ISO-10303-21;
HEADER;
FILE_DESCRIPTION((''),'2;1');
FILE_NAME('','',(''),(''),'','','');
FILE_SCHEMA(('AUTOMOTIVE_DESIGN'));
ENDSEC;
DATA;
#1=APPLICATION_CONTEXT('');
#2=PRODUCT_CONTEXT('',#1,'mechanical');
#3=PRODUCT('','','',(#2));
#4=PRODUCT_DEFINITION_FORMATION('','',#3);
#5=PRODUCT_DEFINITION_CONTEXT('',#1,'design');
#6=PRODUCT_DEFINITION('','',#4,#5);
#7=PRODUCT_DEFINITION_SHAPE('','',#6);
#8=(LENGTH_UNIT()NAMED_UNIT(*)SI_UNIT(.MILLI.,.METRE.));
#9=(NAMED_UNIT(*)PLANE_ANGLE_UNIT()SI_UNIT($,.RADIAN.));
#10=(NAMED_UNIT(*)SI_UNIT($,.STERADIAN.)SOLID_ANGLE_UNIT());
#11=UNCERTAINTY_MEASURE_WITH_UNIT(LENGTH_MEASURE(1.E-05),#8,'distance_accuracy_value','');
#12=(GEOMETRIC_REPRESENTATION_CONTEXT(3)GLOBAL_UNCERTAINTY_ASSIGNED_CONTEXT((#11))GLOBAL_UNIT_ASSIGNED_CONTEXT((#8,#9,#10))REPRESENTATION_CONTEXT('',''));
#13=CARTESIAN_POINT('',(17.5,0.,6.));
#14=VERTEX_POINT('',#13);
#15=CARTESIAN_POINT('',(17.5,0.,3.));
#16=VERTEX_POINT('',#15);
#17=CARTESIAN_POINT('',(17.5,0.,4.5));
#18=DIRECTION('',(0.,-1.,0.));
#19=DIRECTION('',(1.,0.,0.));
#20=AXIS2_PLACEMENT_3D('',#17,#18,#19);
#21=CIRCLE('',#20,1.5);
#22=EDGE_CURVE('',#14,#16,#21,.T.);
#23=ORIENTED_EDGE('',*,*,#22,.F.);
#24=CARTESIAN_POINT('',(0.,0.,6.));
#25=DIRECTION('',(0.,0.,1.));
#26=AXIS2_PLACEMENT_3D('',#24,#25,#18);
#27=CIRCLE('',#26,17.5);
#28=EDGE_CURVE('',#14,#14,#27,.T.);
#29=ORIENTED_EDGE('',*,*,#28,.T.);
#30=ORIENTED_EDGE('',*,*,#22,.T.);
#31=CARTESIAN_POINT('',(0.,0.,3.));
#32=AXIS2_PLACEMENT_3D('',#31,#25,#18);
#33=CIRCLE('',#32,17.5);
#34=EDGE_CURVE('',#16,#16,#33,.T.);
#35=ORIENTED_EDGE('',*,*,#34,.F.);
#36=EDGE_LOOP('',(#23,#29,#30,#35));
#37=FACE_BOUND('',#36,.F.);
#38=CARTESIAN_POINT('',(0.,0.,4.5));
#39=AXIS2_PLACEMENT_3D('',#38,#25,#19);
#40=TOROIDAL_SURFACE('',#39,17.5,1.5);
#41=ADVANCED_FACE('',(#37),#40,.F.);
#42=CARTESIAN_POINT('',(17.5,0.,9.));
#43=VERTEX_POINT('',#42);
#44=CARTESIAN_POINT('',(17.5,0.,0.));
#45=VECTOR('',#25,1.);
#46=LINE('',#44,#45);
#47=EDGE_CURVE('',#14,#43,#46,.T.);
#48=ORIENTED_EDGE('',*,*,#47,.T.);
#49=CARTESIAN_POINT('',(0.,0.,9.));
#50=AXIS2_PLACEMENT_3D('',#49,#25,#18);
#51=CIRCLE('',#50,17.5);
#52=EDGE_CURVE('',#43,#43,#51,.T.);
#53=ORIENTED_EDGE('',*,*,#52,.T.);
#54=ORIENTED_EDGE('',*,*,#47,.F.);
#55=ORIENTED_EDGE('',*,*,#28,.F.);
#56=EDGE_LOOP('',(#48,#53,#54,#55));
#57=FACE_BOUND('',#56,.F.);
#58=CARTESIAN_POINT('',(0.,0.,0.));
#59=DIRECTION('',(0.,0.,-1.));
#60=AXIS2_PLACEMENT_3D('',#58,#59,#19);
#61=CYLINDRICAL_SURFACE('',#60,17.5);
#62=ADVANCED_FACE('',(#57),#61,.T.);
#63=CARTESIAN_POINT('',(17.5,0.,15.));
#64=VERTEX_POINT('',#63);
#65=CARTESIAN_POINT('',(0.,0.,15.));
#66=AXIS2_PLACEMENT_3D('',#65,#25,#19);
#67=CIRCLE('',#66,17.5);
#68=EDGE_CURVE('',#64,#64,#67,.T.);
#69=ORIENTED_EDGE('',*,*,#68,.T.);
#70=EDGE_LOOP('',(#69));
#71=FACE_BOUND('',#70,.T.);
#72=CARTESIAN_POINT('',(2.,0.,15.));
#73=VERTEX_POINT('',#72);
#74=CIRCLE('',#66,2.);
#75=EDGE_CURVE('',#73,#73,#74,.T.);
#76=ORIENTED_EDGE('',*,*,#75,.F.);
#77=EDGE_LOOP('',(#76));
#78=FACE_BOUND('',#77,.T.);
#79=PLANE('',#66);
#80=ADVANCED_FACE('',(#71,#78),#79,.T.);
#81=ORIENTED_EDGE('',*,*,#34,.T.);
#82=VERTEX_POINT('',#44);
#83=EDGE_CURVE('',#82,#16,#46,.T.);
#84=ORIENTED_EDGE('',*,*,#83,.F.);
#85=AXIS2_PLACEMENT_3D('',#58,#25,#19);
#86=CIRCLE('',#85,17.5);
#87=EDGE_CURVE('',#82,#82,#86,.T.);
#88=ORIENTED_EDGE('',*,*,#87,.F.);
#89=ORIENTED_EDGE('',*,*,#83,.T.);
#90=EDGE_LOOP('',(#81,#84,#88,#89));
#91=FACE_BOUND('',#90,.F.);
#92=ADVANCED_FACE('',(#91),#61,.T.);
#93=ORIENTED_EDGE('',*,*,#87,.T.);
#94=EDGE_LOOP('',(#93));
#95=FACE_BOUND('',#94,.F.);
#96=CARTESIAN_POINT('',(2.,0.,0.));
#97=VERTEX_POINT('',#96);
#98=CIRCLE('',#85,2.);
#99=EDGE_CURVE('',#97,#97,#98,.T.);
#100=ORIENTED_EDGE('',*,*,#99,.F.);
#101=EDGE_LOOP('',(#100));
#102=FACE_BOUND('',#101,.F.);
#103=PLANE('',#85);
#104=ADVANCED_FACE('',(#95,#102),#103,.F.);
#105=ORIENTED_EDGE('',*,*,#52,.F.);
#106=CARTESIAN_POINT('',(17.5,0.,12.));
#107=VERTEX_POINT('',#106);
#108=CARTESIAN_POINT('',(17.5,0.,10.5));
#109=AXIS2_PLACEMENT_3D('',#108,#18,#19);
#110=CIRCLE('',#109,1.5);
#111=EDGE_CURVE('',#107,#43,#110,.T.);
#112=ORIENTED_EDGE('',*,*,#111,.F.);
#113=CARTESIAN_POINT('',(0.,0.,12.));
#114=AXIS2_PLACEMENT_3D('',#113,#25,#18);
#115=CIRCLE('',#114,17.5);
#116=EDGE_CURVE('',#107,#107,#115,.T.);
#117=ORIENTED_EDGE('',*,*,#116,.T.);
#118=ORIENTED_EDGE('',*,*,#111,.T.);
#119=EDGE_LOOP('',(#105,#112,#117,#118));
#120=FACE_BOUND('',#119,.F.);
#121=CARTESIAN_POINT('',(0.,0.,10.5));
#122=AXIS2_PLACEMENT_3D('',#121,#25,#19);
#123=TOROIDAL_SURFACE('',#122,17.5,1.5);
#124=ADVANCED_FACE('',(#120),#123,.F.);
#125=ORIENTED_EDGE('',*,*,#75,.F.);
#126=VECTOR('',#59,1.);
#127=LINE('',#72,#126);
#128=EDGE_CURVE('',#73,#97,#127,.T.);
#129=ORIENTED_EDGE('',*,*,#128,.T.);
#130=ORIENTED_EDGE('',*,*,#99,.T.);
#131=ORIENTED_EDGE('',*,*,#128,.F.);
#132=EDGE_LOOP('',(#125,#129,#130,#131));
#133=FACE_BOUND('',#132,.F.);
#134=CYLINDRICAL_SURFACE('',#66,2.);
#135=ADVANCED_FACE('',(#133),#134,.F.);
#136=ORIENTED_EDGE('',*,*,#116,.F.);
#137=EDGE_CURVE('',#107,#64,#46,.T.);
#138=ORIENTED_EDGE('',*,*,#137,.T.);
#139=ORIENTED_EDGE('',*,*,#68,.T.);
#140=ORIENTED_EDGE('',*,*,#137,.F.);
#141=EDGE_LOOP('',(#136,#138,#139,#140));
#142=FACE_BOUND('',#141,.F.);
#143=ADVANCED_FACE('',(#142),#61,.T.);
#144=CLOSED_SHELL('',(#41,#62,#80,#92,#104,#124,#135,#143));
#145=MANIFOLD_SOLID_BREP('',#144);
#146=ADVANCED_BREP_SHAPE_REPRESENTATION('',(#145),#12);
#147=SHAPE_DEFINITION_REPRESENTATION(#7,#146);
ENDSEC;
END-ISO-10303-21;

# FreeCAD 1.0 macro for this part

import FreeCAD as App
import Part
import Sketcher

doc = App.newDocument("Part")
body = doc.addObject("PartDesign::Body", "Body")

sketch1 = body.newObject("Sketcher::SketchObject", "Sketch")
sketch1.AttachmentSupport = (doc.getObject("XZ_Plane"), [""])
sketch1.MapMode = "FlatFace"
sketch1.addGeometry(Part.Circle(App.Vector(17.5, 4.5, 0), App.Vector(0, 0, 1), 1.5), False)
sketch1.addConstraint([
    Sketcher.Constraint("Diameter", 0, 3.0),
    Sketcher.Constraint("DistanceX", -1, 1, 0, 3, 17.5),
    Sketcher.Constraint("DistanceY", -1, 1, 0, 3, 4.5),
])
revolution = body.newObject("PartDesign::Revolution", "Revolution")
revolution.Profile = sketch1
revolution.ReferenceAxis = (sketch1, ["V_Axis"])
revolution.Angle = 360
body2 = doc.addObject("PartDesign::Body", "Body001")
body2.AllowCompound = True

sketch2 = body2.newObject("Sketcher::SketchObject", "Sketch001")
sketch2.AttachmentSupport = (doc.getObject("XZ_Plane001"), [""])
sketch2.MapMode = "FlatFace"
sketch2.addGeometry(Part.Circle(App.Vector(17.5, 10.5, 0), App.Vector(0, 0, 1), 1.5), False)
sketch2.addConstraint([
    Sketcher.Constraint("Diameter", 0, 3.0),
    Sketcher.Constraint("DistanceX", -1, 1, 0, 3, 17.5),
    Sketcher.Constraint("DistanceY", -1, 1, 0, 3, 10.5),
])
revolution2 = body2.newObject("PartDesign::Revolution", "Revolution001")
revolution2.Profile = sketch2
revolution2.ReferenceAxis = (sketch2, ["V_Axis"])
revolution2.Angle = 360
doc.recompute()

boolean = body2.newObject("PartDesign::Boolean", "Boolean")
boolean.Type = "Fuse"
boolean.addObjects([body])
body3 = doc.addObject("PartDesign::Body", "Body002")

sketch3 = body3.newObject("Sketcher::SketchObject", "Sketch002")
sketch3.AttachmentSupport = (doc.getObject("XY_Plane002"), [""])
sketch3.MapMode = "FlatFace"
sketch3.addGeometry(Part.Circle(App.Vector(0, 0, 0), App.Vector(0, 0, 1), 18), False)
sketch3.addConstraint([
    Sketcher.Constraint("Coincident", 0, 3, -1, 1),
    Sketcher.Constraint("Diameter", 0, 35.0),
])
pad1 = body3.newObject("PartDesign::Pad", "Pad")
pad1.Profile = sketch3
pad1.Length = 15
doc.recompute()

boolean2 = body3.newObject("PartDesign::Boolean", "Boolean001")
boolean2.Type = "Cut"
boolean2.addObjects([body2])

sketch4 = body3.newObject("Sketcher::SketchObject", "Sketch003")
sketch4.AttachmentSupport = (doc.getObject("XY_Plane002"), [""])
sketch4.MapMode = "FlatFace"
sketch4.AttachmentOffset = App.Placement(App.Vector(0, 0, 15), App.Rotation())
sketch4.addGeometry(Part.Circle(App.Vector(0, 0, 0), App.Vector(0, 0, 1), 2), False)
sketch4.addConstraint([
    Sketcher.Constraint("Coincident", 0, 3, -1, 1),
    Sketcher.Constraint("Diameter", 0, 4.0),
])
pocket1 = body3.newObject("PartDesign::Pocket", "Pocket")
pocket1.Profile = sketch4
pocket1.Type = "ThroughAll"

doc.recompute()
